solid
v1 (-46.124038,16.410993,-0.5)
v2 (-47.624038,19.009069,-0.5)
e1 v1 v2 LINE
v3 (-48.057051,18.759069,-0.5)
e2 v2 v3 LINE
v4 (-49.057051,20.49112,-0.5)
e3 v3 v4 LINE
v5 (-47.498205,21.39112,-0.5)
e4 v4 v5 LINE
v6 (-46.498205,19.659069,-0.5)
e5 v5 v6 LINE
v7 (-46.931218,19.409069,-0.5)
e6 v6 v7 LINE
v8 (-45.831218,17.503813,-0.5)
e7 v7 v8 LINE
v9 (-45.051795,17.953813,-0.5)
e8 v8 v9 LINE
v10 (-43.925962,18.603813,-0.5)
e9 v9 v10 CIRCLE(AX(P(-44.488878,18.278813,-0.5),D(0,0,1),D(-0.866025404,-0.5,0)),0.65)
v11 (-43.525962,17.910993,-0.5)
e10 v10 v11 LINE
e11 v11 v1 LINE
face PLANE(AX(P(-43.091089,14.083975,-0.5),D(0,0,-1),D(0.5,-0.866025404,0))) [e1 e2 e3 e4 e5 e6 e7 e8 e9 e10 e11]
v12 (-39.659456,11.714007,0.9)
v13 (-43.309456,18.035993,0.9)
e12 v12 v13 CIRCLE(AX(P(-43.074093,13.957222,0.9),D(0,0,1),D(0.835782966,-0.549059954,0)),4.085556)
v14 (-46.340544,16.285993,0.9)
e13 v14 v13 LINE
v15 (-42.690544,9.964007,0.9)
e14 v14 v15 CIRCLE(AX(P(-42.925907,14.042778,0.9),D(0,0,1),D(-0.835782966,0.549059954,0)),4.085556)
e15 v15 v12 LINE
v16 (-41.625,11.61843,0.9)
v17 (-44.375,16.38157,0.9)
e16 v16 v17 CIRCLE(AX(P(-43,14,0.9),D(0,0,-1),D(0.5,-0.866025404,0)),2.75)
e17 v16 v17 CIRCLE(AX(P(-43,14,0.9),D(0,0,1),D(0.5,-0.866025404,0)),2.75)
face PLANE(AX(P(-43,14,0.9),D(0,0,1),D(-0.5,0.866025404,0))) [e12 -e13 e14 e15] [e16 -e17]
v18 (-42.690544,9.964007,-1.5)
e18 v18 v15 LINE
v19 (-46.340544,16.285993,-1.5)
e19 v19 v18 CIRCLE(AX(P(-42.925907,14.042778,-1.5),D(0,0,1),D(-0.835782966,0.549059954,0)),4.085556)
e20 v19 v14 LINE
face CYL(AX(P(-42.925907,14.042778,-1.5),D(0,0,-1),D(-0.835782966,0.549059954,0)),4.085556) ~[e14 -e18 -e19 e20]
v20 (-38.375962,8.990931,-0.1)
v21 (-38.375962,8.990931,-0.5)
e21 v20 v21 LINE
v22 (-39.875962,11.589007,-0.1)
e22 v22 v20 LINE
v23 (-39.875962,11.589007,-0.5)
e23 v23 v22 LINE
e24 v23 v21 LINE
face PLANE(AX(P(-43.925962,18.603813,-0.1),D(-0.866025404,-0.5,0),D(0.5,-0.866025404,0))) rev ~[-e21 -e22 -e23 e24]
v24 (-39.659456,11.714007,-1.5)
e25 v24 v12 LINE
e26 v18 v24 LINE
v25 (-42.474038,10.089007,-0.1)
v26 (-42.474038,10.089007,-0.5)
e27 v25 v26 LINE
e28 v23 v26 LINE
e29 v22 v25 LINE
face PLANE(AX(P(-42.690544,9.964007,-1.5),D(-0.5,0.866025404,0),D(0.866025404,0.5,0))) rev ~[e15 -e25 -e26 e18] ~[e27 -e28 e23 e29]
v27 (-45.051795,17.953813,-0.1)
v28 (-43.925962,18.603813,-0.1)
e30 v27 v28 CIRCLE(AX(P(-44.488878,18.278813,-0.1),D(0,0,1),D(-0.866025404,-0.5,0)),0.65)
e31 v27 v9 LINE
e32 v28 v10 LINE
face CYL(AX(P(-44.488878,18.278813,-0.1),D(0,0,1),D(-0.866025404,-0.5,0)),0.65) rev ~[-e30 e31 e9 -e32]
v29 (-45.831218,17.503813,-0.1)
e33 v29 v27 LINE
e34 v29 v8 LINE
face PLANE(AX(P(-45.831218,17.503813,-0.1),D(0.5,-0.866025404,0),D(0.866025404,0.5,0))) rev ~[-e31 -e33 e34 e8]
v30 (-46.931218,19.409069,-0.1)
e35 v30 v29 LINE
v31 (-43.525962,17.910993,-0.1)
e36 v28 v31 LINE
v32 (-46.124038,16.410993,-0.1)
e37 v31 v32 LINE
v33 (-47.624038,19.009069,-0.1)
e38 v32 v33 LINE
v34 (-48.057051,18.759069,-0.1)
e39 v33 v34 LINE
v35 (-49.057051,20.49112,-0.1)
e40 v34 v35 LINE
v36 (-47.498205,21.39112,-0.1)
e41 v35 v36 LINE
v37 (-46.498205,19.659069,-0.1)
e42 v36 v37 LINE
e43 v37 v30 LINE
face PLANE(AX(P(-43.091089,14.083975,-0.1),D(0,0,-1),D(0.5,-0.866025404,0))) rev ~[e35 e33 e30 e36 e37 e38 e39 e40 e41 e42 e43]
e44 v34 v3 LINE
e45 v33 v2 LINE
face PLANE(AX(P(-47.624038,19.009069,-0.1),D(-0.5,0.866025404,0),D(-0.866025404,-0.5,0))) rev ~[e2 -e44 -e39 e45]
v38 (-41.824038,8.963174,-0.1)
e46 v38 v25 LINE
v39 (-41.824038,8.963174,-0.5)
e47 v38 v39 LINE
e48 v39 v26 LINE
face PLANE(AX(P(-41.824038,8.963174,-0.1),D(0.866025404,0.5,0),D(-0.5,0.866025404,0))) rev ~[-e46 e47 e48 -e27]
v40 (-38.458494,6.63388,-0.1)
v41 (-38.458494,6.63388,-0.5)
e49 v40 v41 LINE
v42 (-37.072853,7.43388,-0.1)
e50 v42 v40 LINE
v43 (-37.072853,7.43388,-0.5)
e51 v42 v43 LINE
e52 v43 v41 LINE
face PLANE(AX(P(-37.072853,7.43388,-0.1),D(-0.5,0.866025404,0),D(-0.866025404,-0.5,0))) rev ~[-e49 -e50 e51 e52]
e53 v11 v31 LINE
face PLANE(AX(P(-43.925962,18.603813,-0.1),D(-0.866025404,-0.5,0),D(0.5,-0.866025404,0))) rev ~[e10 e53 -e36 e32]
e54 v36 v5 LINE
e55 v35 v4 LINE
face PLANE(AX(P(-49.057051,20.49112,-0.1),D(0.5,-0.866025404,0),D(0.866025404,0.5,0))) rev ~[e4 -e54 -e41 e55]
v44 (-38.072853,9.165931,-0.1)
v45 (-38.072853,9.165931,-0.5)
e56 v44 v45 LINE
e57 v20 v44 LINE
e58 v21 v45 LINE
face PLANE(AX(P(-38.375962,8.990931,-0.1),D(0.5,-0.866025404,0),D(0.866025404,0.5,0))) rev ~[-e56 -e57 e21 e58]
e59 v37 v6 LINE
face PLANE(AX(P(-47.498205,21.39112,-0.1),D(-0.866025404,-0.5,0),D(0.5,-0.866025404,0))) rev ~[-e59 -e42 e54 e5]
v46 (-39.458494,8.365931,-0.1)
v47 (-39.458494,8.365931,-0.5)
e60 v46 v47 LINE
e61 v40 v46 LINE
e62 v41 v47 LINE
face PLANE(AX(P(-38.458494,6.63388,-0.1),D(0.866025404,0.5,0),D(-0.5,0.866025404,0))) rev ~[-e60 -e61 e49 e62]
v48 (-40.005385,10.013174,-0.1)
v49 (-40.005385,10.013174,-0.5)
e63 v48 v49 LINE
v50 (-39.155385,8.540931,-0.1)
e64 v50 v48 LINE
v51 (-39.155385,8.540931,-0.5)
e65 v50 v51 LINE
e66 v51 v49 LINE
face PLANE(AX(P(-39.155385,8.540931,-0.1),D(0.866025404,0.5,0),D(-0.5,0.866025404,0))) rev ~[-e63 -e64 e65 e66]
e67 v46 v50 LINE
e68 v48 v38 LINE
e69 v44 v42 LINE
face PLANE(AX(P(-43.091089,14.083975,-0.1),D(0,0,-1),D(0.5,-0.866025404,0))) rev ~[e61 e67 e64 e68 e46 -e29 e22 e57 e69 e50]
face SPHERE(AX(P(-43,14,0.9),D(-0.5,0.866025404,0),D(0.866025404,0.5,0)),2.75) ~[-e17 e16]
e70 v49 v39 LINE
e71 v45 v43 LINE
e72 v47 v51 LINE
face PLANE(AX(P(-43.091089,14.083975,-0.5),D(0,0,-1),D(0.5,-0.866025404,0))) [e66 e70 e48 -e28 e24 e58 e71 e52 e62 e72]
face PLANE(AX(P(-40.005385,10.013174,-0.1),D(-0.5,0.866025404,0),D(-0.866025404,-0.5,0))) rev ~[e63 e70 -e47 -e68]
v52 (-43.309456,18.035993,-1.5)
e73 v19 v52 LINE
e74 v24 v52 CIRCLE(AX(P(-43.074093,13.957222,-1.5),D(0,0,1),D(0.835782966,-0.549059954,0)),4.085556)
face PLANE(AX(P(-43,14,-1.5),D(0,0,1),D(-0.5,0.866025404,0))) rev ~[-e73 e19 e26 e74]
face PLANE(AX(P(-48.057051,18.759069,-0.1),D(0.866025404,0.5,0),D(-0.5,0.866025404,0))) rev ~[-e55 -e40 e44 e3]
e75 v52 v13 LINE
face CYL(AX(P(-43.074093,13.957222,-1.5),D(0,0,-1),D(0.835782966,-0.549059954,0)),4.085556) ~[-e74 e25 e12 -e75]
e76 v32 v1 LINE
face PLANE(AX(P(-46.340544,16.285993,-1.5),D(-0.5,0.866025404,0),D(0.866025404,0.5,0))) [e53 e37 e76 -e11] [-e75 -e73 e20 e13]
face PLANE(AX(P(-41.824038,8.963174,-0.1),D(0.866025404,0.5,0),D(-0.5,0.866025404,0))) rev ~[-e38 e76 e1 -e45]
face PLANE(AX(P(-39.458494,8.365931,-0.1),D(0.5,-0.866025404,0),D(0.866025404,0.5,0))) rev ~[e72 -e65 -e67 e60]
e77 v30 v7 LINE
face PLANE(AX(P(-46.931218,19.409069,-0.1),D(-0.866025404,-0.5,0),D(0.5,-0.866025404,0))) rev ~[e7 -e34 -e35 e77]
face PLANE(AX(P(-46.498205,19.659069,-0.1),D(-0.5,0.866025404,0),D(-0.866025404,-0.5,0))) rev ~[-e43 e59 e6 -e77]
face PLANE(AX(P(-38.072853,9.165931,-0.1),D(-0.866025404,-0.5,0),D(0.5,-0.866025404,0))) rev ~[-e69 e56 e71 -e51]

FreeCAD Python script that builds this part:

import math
import FreeCAD as App
import Part
import Sketcher
from FreeCAD import Vector

doc = App.newDocument("Part")
body = doc.addObject("PartDesign::Body", "Body")

# Sketch on XY plane
sketch1 = doc.addObject("Sketcher::SketchObject", "Sketch")
body.addObject(sketch1)
sketch1.AttachmentSupport = (doc.XY_Plane, [""])
sketch1.MapMode = "FlatFace"
sketch1.AttachmentOffset = App.Placement(Vector(0, 0, 2.4), App.Rotation())
sketch1.addGeometry(Part.ArcOfCircle(Part.Circle(Vector(0, 0, 0), Vector(0, 0, 1), 2.8), math.radians(180), math.radians(360)), False)
sketch1.addGeometry(Part.LineSegment(Vector(2.8, 0, 0), Vector(-2.8, 0, 0)), False)
sketch1.addConstraint(Sketcher.Constraint("Coincident", 0, 1, 1, 2))
sketch1.addConstraint(Sketcher.Constraint("Coincident", 1, 1, 0, 2))
sketch1.addConstraint(Sketcher.Constraint("Horizontal", 1))
sketch1.addConstraint(Sketcher.Constraint("Coincident", 0, 3, -1, 1))
sketch1.addConstraint(Sketcher.Constraint("PointOnObject", 0, 1, -1))
sketch1.addConstraint(Sketcher.Constraint("Radius", 0, 2.75))
revolution = doc.addObject("PartDesign::Revolution", "Revolution")
body.addObject(revolution)
revolution.Profile = sketch1
revolution.ReferenceAxis = (sketch1, ["H_Axis"])
revolution.Angle = 180
revolution.Reversed = True
body2 = doc.addObject("PartDesign::Body", "Body001")

# Sketch on XY plane
sketch2 = doc.addObject("Sketcher::SketchObject", "Sketch001")
body2.addObject(sketch2)
sketch2.AttachmentSupport = (doc.getObject("XY_Plane001"), [""])
sketch2.MapMode = "FlatFace"
sketch2.addGeometry(Part.LineSegment(Vector(6.65, -2, 0), Vector(6.65, -1.5, 0)), False)
sketch2.addGeometry(Part.LineSegment(Vector(6.65, -1.5, 0), Vector(-4.95, -1.5, 0)), False)
sketch2.addGeometry(Part.LineSegment(Vector(-4.95, -1.5, 0), Vector(-4.95, 0.6, 0)), False)
sketch2.addGeometry(Part.LineSegment(Vector(-4.95, 0.6, 0), Vector(-6.65, 0.6, 0)), False)
sketch2.addGeometry(Part.LineSegment(Vector(-6.65, 0.6, 0), Vector(-6.65, 0.25, 0)), False)
sketch2.addGeometry(Part.LineSegment(Vector(-6.65, 0.25, 0), Vector(-8.65, 0.25, 0)), False)
sketch2.addGeometry(Part.LineSegment(Vector(-8.65, 0.25, 0), Vector(-8.65, 1.85, 0)), False)
sketch2.addGeometry(Part.LineSegment(Vector(-8.65, 1.85, 0), Vector(-6.65, 1.85, 0)), False)
sketch2.addGeometry(Part.LineSegment(Vector(-6.65, 1.85, 0), Vector(-6.65, 1.5, 0)), False)
sketch2.addGeometry(Part.LineSegment(Vector(-6.65, 1.5, 0), Vector(4.45, 1.5, 0)), False)
sketch2.addGeometry(Part.ArcOfCircle(Part.Circle(Vector(4.45, 0.85, 0), Vector(0, 0, 1), 0.65), math.radians(90), math.radians(270)), False)
sketch2.addGeometry(Part.LineSegment(Vector(4.45, 0.2, 0), Vector(4.45, -0.7, 0)), False)
sketch2.addGeometry(Part.LineSegment(Vector(4.45, -0.7, 0), Vector(6.65, -0.7, 0)), False)
sketch2.addGeometry(Part.LineSegment(Vector(6.65, -0.7, 0), Vector(6.65, -0.2, 0)), False)
sketch2.addGeometry(Part.LineSegment(Vector(6.65, -0.2, 0), Vector(8.65, -0.2, 0)), False)
sketch2.addGeometry(Part.LineSegment(Vector(8.65, -0.2, 0), Vector(8.65, -2, 0)), False)
sketch2.addGeometry(Part.LineSegment(Vector(8.65, -2, 0), Vector(6.65, -2, 0)), False)
sketch2.addConstraint(Sketcher.Constraint("Coincident", 0, 2, 1, 1))
sketch2.addConstraint(Sketcher.Constraint("Coincident", 1, 2, 2, 1))
sketch2.addConstraint(Sketcher.Constraint("Coincident", 2, 2, 3, 1))
sketch2.addConstraint(Sketcher.Constraint("Coincident", 3, 2, 4, 1))
sketch2.addConstraint(Sketcher.Constraint("Coincident", 4, 2, 5, 1))
sketch2.addConstraint(Sketcher.Constraint("Coincident", 5, 2, 6, 1))
sketch2.addConstraint(Sketcher.Constraint("Coincident", 6, 2, 7, 1))
sketch2.addConstraint(Sketcher.Constraint("Coincident", 7, 2, 8, 1))
sketch2.addConstraint(Sketcher.Constraint("Coincident", 8, 2, 9, 1))
sketch2.addConstraint(Sketcher.Constraint("Tangent", 9, 2, 10, 1))
sketch2.addConstraint(Sketcher.Constraint("Coincident", 10, 2, 11, 1))
sketch2.addConstraint(Sketcher.Constraint("Coincident", 11, 2, 12, 1))
sketch2.addConstraint(Sketcher.Constraint("Coincident", 12, 2, 13, 1))
sketch2.addConstraint(Sketcher.Constraint("Coincident", 13, 2, 14, 1))
sketch2.addConstraint(Sketcher.Constraint("Coincident", 14, 2, 15, 1))
sketch2.addConstraint(Sketcher.Constraint("Coincident", 15, 2, 16, 1))
sketch2.addConstraint(Sketcher.Constraint("Coincident", 16, 2, 0, 1))
sketch2.addConstraint(Sketcher.Constraint("Vertical", 0))
sketch2.addConstraint(Sketcher.Constraint("Horizontal", 1))
sketch2.addConstraint(Sketcher.Constraint("Vertical", 2))
sketch2.addConstraint(Sketcher.Constraint("Horizontal", 3))
sketch2.addConstraint(Sketcher.Constraint("Vertical", 4))
sketch2.addConstraint(Sketcher.Constraint("Horizontal", 5))
sketch2.addConstraint(Sketcher.Constraint("Vertical", 6))
sketch2.addConstraint(Sketcher.Constraint("Horizontal", 7))
sketch2.addConstraint(Sketcher.Constraint("Vertical", 8))
sketch2.addConstraint(Sketcher.Constraint("Horizontal", 9))
sketch2.addConstraint(Sketcher.Constraint("Vertical", 11))
sketch2.addConstraint(Sketcher.Constraint("Horizontal", 12))
sketch2.addConstraint(Sketcher.Constraint("Vertical", 13))
sketch2.addConstraint(Sketcher.Constraint("Horizontal", 14))
sketch2.addConstraint(Sketcher.Constraint("Vertical", 15))
sketch2.addConstraint(Sketcher.Constraint("Horizontal", 16))
sketch2.addConstraint(Sketcher.Constraint("Symmetric", 0, 2, 8, 2, -1, 1))
sketch2.addConstraint(Sketcher.Constraint("Vertical", 4, 2, 7, 2))
sketch2.addConstraint(Sketcher.Constraint("Vertical", 9, 2, 10, 2))
sketch2.addConstraint(Sketcher.Constraint("Vertical", 0, 2, 12, 2))
sketch2.addConstraint(Sketcher.Constraint("Equal", 7, 14))
sketch2.addConstraint(Sketcher.Constraint("Equal", 4, 8))
sketch2.addConstraint(Sketcher.Constraint("Equal", 0, 13))
sketch2.addConstraint(Sketcher.Constraint("DistanceX", 5, 2, 5, 1, 2.0))
sketch2.addConstraint(Sketcher.Constraint("Radius", 10, 0.65))
sketch2.addConstraint(Sketcher.Constraint("DistanceX", 1, 2, 1, 1, 11.6))
sketch2.addConstraint(Sketcher.Constraint("DistanceX", 3, 2, 3, 1, 1.7))
sketch2.addConstraint(Sketcher.Constraint("DistanceX", 9, 1, 9, 2, 11.1))
sketch2.addConstraint(Sketcher.Constraint("DistanceY", 0, 1, 0, 2, 0.5))
sketch2.addConstraint(Sketcher.Constraint("DistanceY", 2, 1, 2, 2, 2.1))
sketch2.addConstraint(Sketcher.Constraint("DistanceY", 6, 1, 6, 2, 1.6))
sketch2.addConstraint(Sketcher.Constraint("DistanceY", 11, 2, 11, 1, 0.9))
sketch2.addConstraint(Sketcher.Constraint("DistanceY", 15, 2, 15, 1, 1.8))
pad1 = doc.addObject("PartDesign::Pad", "Pad")
body2.addObject(pad1)
pad1.Profile = sketch2
pad1.Length = 0.4
body3 = doc.addObject("PartDesign::Body", "Body002")
doc.recompute()

body2.Placement = App.Placement(Vector(0, 0, 1.4), App.Rotation(Vector(1, 0, 0), 180))
boolean = doc.addObject("PartDesign::Boolean", "Boolean")
body3.addObject(boolean)
boolean.Type = "Fuse"
boolean.addObjects([body2])
body4 = doc.addObject("PartDesign::Body", "Body003")

# Sketch on XY plane
sketch3 = doc.addObject("Sketcher::SketchObject", "Sketch002")
body4.addObject(sketch3)
sketch3.AttachmentSupport = (doc.getObject("XY_Plane003"), [""])
sketch3.MapMode = "FlatFace"
sketch3.addGeometry(Part.LineSegment(Vector(-3.6, 1.8, 0), Vector(-3.6, -1.8, 0)), False)
sketch3.addGeometry(Part.ArcOfCircle(Part.Circle(Vector(0, 0.1, 0), Vector(0, 0, 1), 4.1), math.radians(-153), math.radians(-27)), False)
sketch3.addGeometry(Part.LineSegment(Vector(3.6, -1.8, 0), Vector(3.6, 1.8, 0)), False)
sketch3.addGeometry(Part.ArcOfCircle(Part.Circle(Vector(0, -0.1, 0), Vector(0, 0, 1), 4.1), math.radians(27), math.radians(153)), False)
sketch3.addConstraint(Sketcher.Constraint("Coincident", 0, 2, 1, 1))
sketch3.addConstraint(Sketcher.Constraint("Coincident", 1, 2, 2, 1))
sketch3.addConstraint(Sketcher.Constraint("Coincident", 2, 2, 3, 1))
sketch3.addConstraint(Sketcher.Constraint("Coincident", 3, 2, 0, 1))
sketch3.addConstraint(Sketcher.Constraint("Vertical", 0))
sketch3.addConstraint(Sketcher.Constraint("Vertical", 2))
sketch3.addConstraint(Sketcher.Constraint("Equal", 1, 3))
sketch3.addConstraint(Sketcher.Constraint("Symmetric", 1, 3, 3, 3, -1, 1))
sketch3.addConstraint(Sketcher.Constraint("Symmetric", 0, 2, 1, 2, -2))
sketch3.addConstraint(Sketcher.Constraint("DistanceY", 0, 2, 0, 1, 3.5))
sketch3.addConstraint(Sketcher.Constraint("DistanceX", 0, 2, 1, 2, 7.3))
sketch3.addConstraint(Sketcher.Constraint("Radius", 1, 4.085556))
pad2 = doc.addObject("PartDesign::Pad", "Pad001")
body4.addObject(pad2)
pad2.Profile = sketch3
pad2.Length = 2.4
doc.recompute()

boolean2 = doc.addObject("PartDesign::Boolean", "Boolean001")
body4.addObject(boolean2)
boolean2.Type = "Fuse"
boolean2.addObjects([body])
doc.recompute()

boolean3 = doc.addObject("PartDesign::Boolean", "Boolean002")
body4.addObject(boolean3)
boolean3.Type = "Fuse"
boolean3.addObjects([body3])
body5 = doc.addObject("PartDesign::Body", "Body004")
doc.recompute()

body4.Placement = App.Placement(Vector(-43, 14, -1.5), App.Rotation(Vector(0, 0, 1), 120))
boolean4 = doc.addObject("PartDesign::Boolean", "Boolean003")
body5.addObject(boolean4)
boolean4.Type = "Fuse"
boolean4.addObjects([body4])

doc.recompute()
